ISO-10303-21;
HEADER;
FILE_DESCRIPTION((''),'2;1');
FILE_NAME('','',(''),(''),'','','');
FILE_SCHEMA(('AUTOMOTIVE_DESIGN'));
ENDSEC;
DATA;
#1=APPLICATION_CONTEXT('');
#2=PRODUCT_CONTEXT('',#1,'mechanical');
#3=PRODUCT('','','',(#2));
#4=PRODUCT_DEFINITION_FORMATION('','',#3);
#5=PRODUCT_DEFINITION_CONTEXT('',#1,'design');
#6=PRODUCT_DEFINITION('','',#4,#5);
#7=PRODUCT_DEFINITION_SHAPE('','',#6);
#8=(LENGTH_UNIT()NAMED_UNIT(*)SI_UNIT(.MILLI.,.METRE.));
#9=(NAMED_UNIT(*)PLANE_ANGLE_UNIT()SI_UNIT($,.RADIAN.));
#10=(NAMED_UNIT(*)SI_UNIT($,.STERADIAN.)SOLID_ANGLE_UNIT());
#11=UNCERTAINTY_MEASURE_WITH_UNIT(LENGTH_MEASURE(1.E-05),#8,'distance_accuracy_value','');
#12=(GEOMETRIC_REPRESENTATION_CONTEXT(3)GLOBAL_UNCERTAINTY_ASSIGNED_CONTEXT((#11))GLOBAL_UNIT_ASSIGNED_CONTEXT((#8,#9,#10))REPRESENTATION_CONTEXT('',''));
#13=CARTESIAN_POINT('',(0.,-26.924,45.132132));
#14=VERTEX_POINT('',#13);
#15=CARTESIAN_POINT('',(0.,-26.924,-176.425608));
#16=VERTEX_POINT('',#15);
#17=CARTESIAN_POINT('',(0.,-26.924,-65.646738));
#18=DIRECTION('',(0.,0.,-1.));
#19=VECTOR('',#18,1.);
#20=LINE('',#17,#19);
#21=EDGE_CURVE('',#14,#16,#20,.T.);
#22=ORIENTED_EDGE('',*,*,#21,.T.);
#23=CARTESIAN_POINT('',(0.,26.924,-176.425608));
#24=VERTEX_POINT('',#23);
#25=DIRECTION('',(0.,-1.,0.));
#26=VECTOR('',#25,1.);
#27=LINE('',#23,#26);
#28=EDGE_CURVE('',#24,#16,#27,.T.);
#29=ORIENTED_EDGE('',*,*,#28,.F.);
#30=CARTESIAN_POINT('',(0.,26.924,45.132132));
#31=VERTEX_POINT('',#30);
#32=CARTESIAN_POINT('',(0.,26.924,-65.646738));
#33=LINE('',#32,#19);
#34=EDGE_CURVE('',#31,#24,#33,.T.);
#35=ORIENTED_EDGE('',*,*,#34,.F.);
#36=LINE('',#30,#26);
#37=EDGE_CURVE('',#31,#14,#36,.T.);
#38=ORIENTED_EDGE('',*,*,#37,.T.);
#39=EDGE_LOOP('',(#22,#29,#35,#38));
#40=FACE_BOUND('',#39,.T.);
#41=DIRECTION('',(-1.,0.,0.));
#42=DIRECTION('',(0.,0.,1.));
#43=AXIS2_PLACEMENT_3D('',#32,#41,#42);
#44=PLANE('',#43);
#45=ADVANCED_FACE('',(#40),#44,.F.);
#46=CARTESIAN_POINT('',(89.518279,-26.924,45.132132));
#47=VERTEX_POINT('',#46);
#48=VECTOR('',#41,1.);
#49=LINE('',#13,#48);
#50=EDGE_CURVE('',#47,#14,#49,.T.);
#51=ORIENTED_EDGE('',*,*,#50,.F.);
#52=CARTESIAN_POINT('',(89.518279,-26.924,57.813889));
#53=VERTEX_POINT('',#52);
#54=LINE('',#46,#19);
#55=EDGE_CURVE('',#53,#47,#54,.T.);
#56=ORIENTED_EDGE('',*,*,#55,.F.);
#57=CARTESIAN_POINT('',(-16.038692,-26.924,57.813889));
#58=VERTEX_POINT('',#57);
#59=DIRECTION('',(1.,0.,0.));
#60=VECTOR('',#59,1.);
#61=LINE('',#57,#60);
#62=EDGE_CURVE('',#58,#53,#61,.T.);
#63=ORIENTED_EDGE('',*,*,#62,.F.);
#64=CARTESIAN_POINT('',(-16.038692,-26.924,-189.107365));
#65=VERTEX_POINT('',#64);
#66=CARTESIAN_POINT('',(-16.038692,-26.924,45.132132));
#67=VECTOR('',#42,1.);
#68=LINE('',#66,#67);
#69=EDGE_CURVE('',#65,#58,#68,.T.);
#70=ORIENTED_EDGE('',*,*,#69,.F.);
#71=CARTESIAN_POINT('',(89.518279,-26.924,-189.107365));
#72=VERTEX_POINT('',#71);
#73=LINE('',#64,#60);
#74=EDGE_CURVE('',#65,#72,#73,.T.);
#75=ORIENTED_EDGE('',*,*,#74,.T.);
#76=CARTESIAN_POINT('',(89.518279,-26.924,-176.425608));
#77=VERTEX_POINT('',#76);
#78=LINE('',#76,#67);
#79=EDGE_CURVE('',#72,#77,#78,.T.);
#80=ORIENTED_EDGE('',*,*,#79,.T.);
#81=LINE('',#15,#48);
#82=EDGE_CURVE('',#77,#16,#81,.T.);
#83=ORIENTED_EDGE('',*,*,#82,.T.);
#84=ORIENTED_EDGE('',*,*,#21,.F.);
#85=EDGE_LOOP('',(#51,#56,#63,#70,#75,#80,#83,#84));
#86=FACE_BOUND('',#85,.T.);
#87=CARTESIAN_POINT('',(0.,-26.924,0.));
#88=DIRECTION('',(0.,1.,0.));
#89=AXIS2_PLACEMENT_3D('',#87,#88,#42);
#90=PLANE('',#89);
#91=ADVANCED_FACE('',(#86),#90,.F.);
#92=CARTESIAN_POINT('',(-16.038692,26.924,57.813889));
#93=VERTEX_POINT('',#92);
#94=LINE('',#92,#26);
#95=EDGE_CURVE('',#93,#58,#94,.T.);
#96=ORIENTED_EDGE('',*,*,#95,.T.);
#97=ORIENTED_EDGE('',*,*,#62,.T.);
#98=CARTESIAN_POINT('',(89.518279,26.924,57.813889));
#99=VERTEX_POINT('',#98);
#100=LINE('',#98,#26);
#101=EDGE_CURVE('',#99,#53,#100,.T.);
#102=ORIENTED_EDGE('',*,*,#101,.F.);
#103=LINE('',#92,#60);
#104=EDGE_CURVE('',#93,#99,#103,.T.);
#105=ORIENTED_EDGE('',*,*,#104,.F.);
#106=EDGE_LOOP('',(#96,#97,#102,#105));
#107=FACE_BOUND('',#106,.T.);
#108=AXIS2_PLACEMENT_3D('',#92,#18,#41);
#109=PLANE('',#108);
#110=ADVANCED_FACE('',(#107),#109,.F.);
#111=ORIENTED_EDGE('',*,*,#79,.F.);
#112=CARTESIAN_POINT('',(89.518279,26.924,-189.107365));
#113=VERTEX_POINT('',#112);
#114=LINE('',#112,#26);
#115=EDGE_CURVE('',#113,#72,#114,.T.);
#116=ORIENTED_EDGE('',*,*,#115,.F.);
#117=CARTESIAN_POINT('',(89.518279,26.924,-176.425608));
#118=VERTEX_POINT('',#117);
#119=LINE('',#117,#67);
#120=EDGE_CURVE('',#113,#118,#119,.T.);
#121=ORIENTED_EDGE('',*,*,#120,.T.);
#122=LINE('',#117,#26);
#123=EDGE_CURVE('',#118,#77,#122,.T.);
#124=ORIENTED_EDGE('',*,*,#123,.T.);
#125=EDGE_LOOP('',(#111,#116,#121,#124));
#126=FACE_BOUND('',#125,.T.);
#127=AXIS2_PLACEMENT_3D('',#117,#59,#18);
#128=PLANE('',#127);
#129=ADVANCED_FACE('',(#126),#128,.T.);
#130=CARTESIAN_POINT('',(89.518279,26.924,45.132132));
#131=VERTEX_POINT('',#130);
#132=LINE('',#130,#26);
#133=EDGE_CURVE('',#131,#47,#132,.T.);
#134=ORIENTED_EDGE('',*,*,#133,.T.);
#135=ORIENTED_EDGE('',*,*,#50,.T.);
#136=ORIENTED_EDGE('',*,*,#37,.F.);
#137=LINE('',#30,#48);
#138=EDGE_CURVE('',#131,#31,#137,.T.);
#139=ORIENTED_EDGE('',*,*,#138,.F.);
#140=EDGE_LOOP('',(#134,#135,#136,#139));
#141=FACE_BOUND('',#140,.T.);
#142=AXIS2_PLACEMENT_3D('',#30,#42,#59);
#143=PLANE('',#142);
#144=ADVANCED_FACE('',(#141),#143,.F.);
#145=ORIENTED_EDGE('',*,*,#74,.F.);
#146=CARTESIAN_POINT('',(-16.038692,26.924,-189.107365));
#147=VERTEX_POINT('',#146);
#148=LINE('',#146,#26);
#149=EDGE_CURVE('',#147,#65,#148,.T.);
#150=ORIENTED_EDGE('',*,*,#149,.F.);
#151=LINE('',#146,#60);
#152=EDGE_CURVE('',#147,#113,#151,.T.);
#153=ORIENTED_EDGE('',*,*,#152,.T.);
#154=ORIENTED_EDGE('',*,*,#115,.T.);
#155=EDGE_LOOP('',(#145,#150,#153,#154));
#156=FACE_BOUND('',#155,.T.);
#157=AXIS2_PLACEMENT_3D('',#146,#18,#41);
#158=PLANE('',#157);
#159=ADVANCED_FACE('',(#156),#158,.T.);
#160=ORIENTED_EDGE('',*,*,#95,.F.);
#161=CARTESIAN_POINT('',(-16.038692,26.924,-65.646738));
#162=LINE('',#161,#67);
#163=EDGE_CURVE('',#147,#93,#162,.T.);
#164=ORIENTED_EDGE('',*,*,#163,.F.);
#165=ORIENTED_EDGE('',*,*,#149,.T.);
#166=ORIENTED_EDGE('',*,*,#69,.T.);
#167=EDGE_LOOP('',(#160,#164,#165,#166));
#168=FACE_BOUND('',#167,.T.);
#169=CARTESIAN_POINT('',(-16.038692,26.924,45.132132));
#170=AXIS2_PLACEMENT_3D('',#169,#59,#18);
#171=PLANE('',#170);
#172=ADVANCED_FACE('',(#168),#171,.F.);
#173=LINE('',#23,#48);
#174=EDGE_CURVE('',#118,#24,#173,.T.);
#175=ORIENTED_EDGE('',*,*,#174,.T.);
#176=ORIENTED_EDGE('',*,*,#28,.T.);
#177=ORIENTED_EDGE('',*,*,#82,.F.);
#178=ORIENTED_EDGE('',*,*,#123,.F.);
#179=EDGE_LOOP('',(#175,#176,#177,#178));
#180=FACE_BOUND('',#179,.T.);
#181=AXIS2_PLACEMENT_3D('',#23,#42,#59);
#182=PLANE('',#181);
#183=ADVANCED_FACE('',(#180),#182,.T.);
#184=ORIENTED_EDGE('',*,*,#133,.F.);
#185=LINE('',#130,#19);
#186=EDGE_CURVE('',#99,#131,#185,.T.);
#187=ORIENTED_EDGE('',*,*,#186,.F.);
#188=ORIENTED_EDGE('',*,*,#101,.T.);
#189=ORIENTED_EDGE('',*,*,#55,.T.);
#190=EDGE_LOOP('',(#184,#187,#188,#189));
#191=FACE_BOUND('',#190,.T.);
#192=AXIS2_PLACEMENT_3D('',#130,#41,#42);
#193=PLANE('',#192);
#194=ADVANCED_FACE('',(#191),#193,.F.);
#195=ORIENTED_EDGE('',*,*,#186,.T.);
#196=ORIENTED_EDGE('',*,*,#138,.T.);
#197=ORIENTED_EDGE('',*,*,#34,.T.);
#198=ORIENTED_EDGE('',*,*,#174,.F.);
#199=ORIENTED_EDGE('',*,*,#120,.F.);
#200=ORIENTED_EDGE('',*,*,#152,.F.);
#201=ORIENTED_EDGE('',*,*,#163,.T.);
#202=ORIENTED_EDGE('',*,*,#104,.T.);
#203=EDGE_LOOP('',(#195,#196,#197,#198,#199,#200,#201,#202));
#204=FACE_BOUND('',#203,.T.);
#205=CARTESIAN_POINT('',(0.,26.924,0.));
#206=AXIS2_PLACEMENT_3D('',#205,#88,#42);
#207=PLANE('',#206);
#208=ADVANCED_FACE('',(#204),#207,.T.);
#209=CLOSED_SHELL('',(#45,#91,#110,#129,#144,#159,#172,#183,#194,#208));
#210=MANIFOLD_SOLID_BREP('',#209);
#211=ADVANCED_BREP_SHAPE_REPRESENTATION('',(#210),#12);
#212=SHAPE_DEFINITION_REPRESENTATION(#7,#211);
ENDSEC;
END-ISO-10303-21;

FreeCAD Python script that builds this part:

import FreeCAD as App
import Part
import Sketcher
Q = App.Units.Quantity


def add_polygon(sketch, points):
    """Adds a closed chain of lines whose ends are joined by coincident constraints."""
    first, n = sketch.GeometryCount, len(points)
    for a, b in zip(points, points[1:] + points[:1]):
        sketch.addGeometry(Part.LineSegment(App.Vector(*a, 0), App.Vector(*b, 0)), False)
    for i in range(n):
        sketch.addConstraint(Sketcher.Constraint("Coincident", first + i, 2, first + (i + 1) % n, 1))

doc = App.newDocument("Part")
body = doc.addObject("PartDesign::Body", "Body")

# Sketch on XZ plane
sketch1 = body.newObject("Sketcher::SketchObject", "Sketch")
sketch1.AttachmentSupport = (doc.getObject("XZ_Plane"), [""])
sketch1.MapMode = "FlatFace"
add_polygon(sketch1, [(0, -66), (-16, -66), (-16, 58), (90, 58), (90, 45), (0, 45)])  # lines 0-5
sketch1.addConstraint([
    Sketcher.Constraint("Horizontal", 0),
    Sketcher.Constraint("Vertical", 1),
    Sketcher.Constraint("Horizontal", 2),
    Sketcher.Constraint("Vertical", 3),
    Sketcher.Constraint("Horizontal", 4),
    Sketcher.Constraint("Vertical", 5),
    Sketcher.Constraint("PointOnObject", 4, 2, -2),
    Sketcher.Constraint("DistanceX", 0, 2, 0, 1, Q("16.038692 mm")),
    Sketcher.Constraint("DistanceX", 2, 1, 2, 2, Q("105.556971 mm")),
    Sketcher.Constraint("DistanceY", 5, 2, 5, 1, Q("110.77887 mm")),
    Sketcher.Constraint("DistanceY", 1, 1, 1, 2, Q("123.460627 mm")),
    Sketcher.Constraint("DistanceY", -1, 1, 1, 2, Q("57.813889 mm")),
])
pad1 = body.newObject("PartDesign::Pad", "Pad")
pad1.Profile = sketch1
pad1.Length = Q("2.12 in")
pad1.Midplane = True
doc.recompute()

datumplane = body.newObject("PartDesign::Plane", "DatumPlane")
datumplane.AttachmentSupport = (doc.getObject("XY_Plane"), [""])
datumplane.MapMode = "FlatFace"
datumplane.AttachmentOffset = App.Placement(App.Vector(0, 0, -65.646738), App.Rotation())
mirrored = body.newObject("PartDesign::Mirrored", "Mirrored")
mirrored.Originals = [pad1]
mirrored.MirrorPlane = (datumplane, [""])
body.Tip = mirrored

doc.recompute()
